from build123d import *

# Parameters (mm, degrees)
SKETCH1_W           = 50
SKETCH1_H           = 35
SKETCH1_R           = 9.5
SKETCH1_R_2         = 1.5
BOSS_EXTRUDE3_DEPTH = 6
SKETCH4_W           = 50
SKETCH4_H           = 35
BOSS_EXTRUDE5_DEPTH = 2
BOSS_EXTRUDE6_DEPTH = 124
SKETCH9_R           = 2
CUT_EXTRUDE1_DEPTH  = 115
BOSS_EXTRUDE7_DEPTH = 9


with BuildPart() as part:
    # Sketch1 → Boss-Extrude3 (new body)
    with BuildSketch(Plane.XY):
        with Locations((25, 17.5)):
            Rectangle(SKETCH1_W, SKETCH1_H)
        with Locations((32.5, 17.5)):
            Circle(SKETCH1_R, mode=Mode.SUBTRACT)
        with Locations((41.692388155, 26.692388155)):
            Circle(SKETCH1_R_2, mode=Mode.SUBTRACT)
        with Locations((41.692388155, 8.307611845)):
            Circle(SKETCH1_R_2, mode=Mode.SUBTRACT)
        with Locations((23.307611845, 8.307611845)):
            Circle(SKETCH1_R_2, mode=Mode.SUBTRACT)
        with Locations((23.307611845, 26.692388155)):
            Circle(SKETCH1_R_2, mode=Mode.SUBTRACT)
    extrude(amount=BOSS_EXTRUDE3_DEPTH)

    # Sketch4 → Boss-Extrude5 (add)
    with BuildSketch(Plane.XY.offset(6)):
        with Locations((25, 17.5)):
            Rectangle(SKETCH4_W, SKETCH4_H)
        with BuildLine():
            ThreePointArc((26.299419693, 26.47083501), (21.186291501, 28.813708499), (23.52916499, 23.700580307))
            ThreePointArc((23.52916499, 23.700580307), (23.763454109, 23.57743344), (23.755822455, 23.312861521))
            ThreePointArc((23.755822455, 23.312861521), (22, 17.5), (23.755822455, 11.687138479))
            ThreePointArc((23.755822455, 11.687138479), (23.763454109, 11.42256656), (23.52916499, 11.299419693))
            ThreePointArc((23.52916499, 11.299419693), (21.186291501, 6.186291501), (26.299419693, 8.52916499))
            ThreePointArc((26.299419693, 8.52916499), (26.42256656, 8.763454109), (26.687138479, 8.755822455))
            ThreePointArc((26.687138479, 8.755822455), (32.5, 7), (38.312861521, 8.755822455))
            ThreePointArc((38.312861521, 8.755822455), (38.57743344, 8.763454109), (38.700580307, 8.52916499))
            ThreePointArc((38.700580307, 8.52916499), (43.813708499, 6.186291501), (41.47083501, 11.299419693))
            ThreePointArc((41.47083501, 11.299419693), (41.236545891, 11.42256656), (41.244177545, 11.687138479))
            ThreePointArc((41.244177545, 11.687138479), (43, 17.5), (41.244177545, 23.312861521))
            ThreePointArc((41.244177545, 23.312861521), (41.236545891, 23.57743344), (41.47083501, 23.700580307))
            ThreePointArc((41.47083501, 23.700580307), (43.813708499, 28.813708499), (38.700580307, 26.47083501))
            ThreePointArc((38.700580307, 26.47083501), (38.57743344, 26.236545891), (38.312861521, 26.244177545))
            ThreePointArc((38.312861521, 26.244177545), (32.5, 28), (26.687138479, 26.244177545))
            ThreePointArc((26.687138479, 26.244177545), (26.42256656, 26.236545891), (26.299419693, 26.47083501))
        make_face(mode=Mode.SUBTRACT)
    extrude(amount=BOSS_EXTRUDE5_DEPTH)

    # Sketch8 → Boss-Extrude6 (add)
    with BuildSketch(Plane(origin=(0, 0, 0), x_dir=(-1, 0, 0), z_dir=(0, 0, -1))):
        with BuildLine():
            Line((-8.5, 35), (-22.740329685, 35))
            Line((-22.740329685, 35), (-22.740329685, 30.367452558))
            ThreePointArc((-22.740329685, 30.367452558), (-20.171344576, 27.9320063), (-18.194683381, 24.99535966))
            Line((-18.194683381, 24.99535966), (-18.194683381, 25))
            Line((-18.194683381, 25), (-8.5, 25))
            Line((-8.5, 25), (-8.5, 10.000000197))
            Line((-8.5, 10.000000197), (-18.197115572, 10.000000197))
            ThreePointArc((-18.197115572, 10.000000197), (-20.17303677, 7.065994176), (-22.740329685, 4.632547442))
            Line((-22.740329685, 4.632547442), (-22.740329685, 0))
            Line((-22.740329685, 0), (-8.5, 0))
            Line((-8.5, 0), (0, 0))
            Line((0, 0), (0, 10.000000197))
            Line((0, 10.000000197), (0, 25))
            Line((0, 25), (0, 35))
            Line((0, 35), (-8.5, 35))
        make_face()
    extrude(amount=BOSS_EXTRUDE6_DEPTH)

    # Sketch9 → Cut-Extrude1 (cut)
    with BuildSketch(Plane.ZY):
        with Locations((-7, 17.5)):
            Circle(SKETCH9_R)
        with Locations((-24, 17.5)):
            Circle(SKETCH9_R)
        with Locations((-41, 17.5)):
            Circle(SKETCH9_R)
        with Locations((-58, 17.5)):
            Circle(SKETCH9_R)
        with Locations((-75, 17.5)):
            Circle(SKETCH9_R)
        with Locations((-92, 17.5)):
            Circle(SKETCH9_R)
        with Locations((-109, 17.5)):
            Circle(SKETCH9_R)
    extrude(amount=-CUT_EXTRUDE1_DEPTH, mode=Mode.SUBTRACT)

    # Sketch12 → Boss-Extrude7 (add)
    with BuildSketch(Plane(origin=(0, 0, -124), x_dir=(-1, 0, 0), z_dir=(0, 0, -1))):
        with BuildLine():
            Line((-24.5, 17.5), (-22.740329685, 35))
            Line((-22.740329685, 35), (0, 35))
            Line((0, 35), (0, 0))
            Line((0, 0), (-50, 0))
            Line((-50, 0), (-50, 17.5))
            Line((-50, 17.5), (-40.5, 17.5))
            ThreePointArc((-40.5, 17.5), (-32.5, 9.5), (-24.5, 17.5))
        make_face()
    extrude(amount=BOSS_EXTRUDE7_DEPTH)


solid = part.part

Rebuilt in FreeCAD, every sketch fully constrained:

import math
import FreeCAD as App
import Part
import Sketcher

V = App.Vector

doc = App.newDocument("Part")
body = doc.addObject("PartDesign::Body", "Body")

# Sketch on XY plane
sketch1 = body.newObject("Sketcher::SketchObject", "Sketch")
sketch1.AttachmentSupport = (doc.getObject("XY_Plane"), [""])
sketch1.MapMode = "FlatFace"
sketch1.addGeometry([
    Part.LineSegment(V(0, 35, 0), V(0, 0, 0)),  # 0
    Part.LineSegment(V(0, 0, 0), V(50, 0, 0)),  # 1
    Part.LineSegment(V(50, 0, 0), V(50, 35, 0)),  # 2
    Part.LineSegment(V(50, 35, 0), V(0, 35, 0)),  # 3
    Part.Circle(V(23.307612, 8.307612, 0), V(0, 0, 1), 1.5),  # 4
    Part.Circle(V(41.692388, 8.307612, 0), V(0, 0, 1), 1.5),  # 5
    Part.Circle(V(32.5, 17.5, 0), V(0, 0, 1), 9.5),  # 6
    Part.Circle(V(23.307612, 26.692388, 0), V(0, 0, 1), 1.5),  # 7
    Part.Circle(V(41.692388, 26.692388, 0), V(0, 0, 1), 1.5),  # 8
], False)
sketch1.addConstraint([
    Sketcher.Constraint("Coincident", 0, 2, 1, 1),
    Sketcher.Constraint("Coincident", 1, 2, 2, 1),
    Sketcher.Constraint("Coincident", 2, 2, 3, 1),
    Sketcher.Constraint("Coincident", 3, 2, 0, 1),
    Sketcher.Constraint("Vertical", 0),
    Sketcher.Constraint("Horizontal", 1),
    Sketcher.Constraint("Vertical", 2),
    Sketcher.Constraint("Horizontal", 3),
    Sketcher.Constraint("Coincident", 0, 2, -1, 1),
    Sketcher.Constraint("Equal", 4, 5),
    Sketcher.Constraint("Equal", 5, 7),
    Sketcher.Constraint("Equal", 7, 8),
    Sketcher.Constraint("Horizontal", 4, 3, 5, 3),
    Sketcher.Constraint("Horizontal", 7, 3, 8, 3),
    Sketcher.Constraint("Vertical", 4, 3, 7, 3),
    Sketcher.Constraint("Vertical", 5, 3, 8, 3),
    Sketcher.Constraint("Diameter", 4, 3.0),
    Sketcher.Constraint("Diameter", 6, 19.0),
    Sketcher.Constraint("DistanceX", 1, 1, 1, 2, 50.0),
    Sketcher.Constraint("DistanceY", 0, 2, 0, 1, 35.0),
    Sketcher.Constraint("DistanceX", -1, 1, 6, 3, 32.5),
    Sketcher.Constraint("DistanceY", -1, 1, 6, 3, 17.5),
    Sketcher.Constraint("DistanceX", -1, 1, 4, 3, 23.307612),
    Sketcher.Constraint("DistanceY", -1, 1, 4, 3, 8.307612),
    Sketcher.Constraint("DistanceX", -1, 1, 5, 3, 41.692388),
    Sketcher.Constraint("DistanceY", -1, 1, 7, 3, 26.692388),
])
pad1 = body.newObject("PartDesign::Pad", "Pad")
pad1.Profile = sketch1
pad1.Length = 6

# Sketch on XY plane
sketch2 = body.newObject("Sketcher::SketchObject", "Sketch001")
sketch2.AttachmentSupport = (doc.getObject("XY_Plane"), [""])
sketch2.MapMode = "FlatFace"
sketch2.AttachmentOffset = App.Placement(V(0, 0, 6), App.Rotation())
sketch2.addGeometry([
    Part.LineSegment(V(0, 35, 0), V(0, 0, 0)),  # 0
    Part.LineSegment(V(0, 0, 0), V(50, 0, 0)),  # 1
    Part.LineSegment(V(50, 0, 0), V(50, 35, 0)),  # 2
    Part.LineSegment(V(50, 35, 0), V(0, 35, 0)),  # 3
    Part.ArcOfCircle(Part.Circle(V(23.307612, 26.692388, 0), V(0, 0, 1), 3), math.radians(-4.235209), math.radians(274.235209)),  # 4
    Part.ArcOfCircle(Part.Circle(V(26.548737, 26.452372, 0), V(0, 0, 1), 0.25), math.radians(175.764791), math.radians(303.614743)),  # 5
    Part.ArcOfCircle(Part.Circle(V(32.5, 17.5, 0), V(0, 0, 1), 10.5), math.radians(56.385257), math.radians(123.614743)),  # 6
    Part.ArcOfCircle(Part.Circle(V(38.451263, 26.452372, 0), V(0, 0, 1), 0.25), math.radians(-123.614743), math.radians(4.235209)),  # 7
    Part.ArcOfCircle(Part.Circle(V(41.692388, 26.692388, 0), V(0, 0, 1), 3), math.radians(-94.235209), math.radians(184.235209)),  # 8
    Part.ArcOfCircle(Part.Circle(V(41.452372, 23.451263, 0), V(0, 0, 1), 0.25), math.radians(85.764791), math.radians(213.614743)),  # 9
    Part.ArcOfCircle(Part.Circle(V(32.5, 17.5, 0), V(0, 0, 1), 10.5), math.radians(-33.614743), math.radians(33.614743)),  # 10
    Part.ArcOfCircle(Part.Circle(V(41.452372, 11.548737, 0), V(0, 0, 1), 0.25), math.radians(146.385257), math.radians(274.235209)),  # 11
    Part.ArcOfCircle(Part.Circle(V(41.692388, 8.307612, 0), V(0, 0, 1), 3), math.radians(175.764791), math.radians(454.235209)),  # 12
    Part.ArcOfCircle(Part.Circle(V(38.451263, 8.547628, 0), V(0, 0, 1), 0.25), math.radians(-4.235209), math.radians(123.614743)),  # 13
    Part.ArcOfCircle(Part.Circle(V(32.5, 17.5, 0), V(0, 0, 1), 10.5), math.radians(-123.614743), math.radians(-56.385257)),  # 14
    Part.ArcOfCircle(Part.Circle(V(26.548737, 8.547628, 0), V(0, 0, 1), 0.25), math.radians(56.385257), math.radians(184.235209)),  # 15
    Part.ArcOfCircle(Part.Circle(V(23.307612, 8.307612, 0), V(0, 0, 1), 3), math.radians(85.764791), math.radians(364.235209)),  # 16
    Part.ArcOfCircle(Part.Circle(V(23.547628, 11.548737, 0), V(0, 0, 1), 0.25), math.radians(-94.235209), math.radians(33.614743)),  # 17
    Part.ArcOfCircle(Part.Circle(V(32.5, 17.5, 0), V(0, 0, 1), 10.5), math.radians(146.385257), math.radians(213.614743)),  # 18
    Part.ArcOfCircle(Part.Circle(V(23.547628, 23.451263, 0), V(0, 0, 1), 0.25), math.radians(-33.614743), math.radians(94.235209)),  # 19
], False)
sketch2.addConstraint([
    Sketcher.Constraint("Coincident", 0, 2, 1, 1),
    Sketcher.Constraint("Coincident", 1, 2, 2, 1),
    Sketcher.Constraint("Coincident", 2, 2, 3, 1),
    Sketcher.Constraint("Coincident", 3, 2, 0, 1),
    Sketcher.Constraint("Coincident", 4, 1, 5, 1),
    Sketcher.Constraint("Coincident", 5, 2, 6, 2),
    Sketcher.Constraint("Coincident", 6, 1, 7, 1),
    Sketcher.Constraint("Coincident", 7, 2, 8, 2),
    Sketcher.Constraint("Coincident", 8, 1, 9, 1),
    Sketcher.Constraint("Coincident", 9, 2, 10, 2),
    Sketcher.Constraint("Coincident", 10, 1, 11, 1),
    Sketcher.Constraint("Coincident", 11, 2, 12, 2),
    Sketcher.Constraint("Coincident", 12, 1, 13, 1),
    Sketcher.Constraint("Coincident", 13, 2, 14, 2),
    Sketcher.Constraint("Coincident", 14, 1, 15, 1),
    Sketcher.Constraint("Coincident", 15, 2, 16, 2),
    Sketcher.Constraint("Coincident", 16, 1, 17, 1),
    Sketcher.Constraint("Coincident", 17, 2, 18, 2),
    Sketcher.Constraint("Coincident", 18, 1, 19, 1),
    Sketcher.Constraint("Coincident", 19, 2, 4, 2),
    Sketcher.Constraint("Vertical", 0),
    Sketcher.Constraint("Horizontal", 1),
    Sketcher.Constraint("Vertical", 2),
    Sketcher.Constraint("Horizontal", 3),
    Sketcher.Constraint("Coincident", 0, 2, -1, 1),
    Sketcher.Constraint("Coincident", 10, 3, 6, 3),
    Sketcher.Constraint("Coincident", 14, 3, 6, 3),
    Sketcher.Constraint("Coincident", 18, 3, 6, 3),
    Sketcher.Constraint("Radius", 4, 3.0),
    Sketcher.Constraint("Radius", 8, 3.0),
    Sketcher.Constraint("Radius", 12, 3.0),
    Sketcher.Constraint("Radius", 16, 3.0),
    Sketcher.Constraint("Radius", 6, 10.5),
    Sketcher.Constraint("Radius", 10, 10.5),
    Sketcher.Constraint("Radius", 14, 10.5),
    Sketcher.Constraint("Radius", 18, 10.5),
    Sketcher.Constraint("DistanceX", 1, 1, 1, 2, 50.0),
    Sketcher.Constraint("DistanceY", 0, 2, 0, 1, 35.0),
    Sketcher.Constraint("Radius", 5, 0.25),
    Sketcher.Constraint("Radius", 7, 0.25),
    Sketcher.Constraint("Radius", 9, 0.25),
    Sketcher.Constraint("Radius", 11, 0.25),
    Sketcher.Constraint("Radius", 13, 0.25),
    Sketcher.Constraint("Radius", 15, 0.25),
    Sketcher.Constraint("Radius", 17, 0.25),
    Sketcher.Constraint("Radius", 19, 0.25),
    Sketcher.Constraint("DistanceX", -1, 1, 6, 3, 32.5),
    Sketcher.Constraint("DistanceY", -1, 1, 6, 3, 17.5),
    Sketcher.Constraint("DistanceX", 5, 3, 5, 2, 0.138401),
    Sketcher.Constraint("DistanceX", 6, 1, 7, 3, 0.138401),
    Sketcher.Constraint("DistanceY", 9, 2, 9, 3, 0.138401),
    Sketcher.Constraint("DistanceY", 11, 3, 10, 1, 0.138401),
    Sketcher.Constraint("DistanceX", 13, 2, 13, 3, 0.138401),
    Sketcher.Constraint("DistanceX", 15, 3, 14, 1, 0.138401),
    Sketcher.Constraint("DistanceY", 17, 3, 17, 2, 0.138401),
    Sketcher.Constraint("DistanceY", 18, 1, 19, 3, 0.138401),
    Sketcher.Constraint("DistanceX", -1, 1, 4, 3, 23.307612),
    Sketcher.Constraint("DistanceY", -1, 1, 4, 3, 26.692388),
    Sketcher.Constraint("DistanceX", -1, 1, 8, 3, 41.692388),
    Sketcher.Constraint("DistanceY", -1, 1, 8, 3, 26.692388),
    Sketcher.Constraint("DistanceX", -1, 1, 12, 3, 41.692388),
    Sketcher.Constraint("DistanceY", -1, 1, 12, 3, 8.307612),
    Sketcher.Constraint("DistanceX", -1, 1, 16, 3, 23.307612),
    Sketcher.Constraint("DistanceY", -1, 1, 16, 3, 8.307612),
    Sketcher.Constraint("DistanceX", -1, 1, 4, 1, 26.29942),
    Sketcher.Constraint("DistanceX", -1, 1, 7, 2, 38.70058),
    Sketcher.Constraint("DistanceY", -1, 1, 8, 1, 23.70058),
    Sketcher.Constraint("DistanceY", -1, 1, 11, 2, 11.29942),
    Sketcher.Constraint("DistanceX", -1, 1, 12, 1, 38.70058),
    Sketcher.Constraint("DistanceX", -1, 1, 15, 2, 26.29942),
    Sketcher.Constraint("DistanceY", -1, 1, 16, 1, 11.29942),
    Sketcher.Constraint("DistanceY", -1, 1, 19, 2, 23.70058),
])
pad2 = body.newObject("PartDesign::Pad", "Pad001")
pad2.Profile = sketch2
pad2.Length = 2

# Sketch on XY plane
sketch3 = body.newObject("Sketcher::SketchObject", "Sketch002")
sketch3.AttachmentSupport = (doc.getObject("XY_Plane"), [""])
sketch3.MapMode = "FlatFace"
sketch3.addGeometry([
    Part.LineSegment(V(22.74033, 35, 0), V(22.74033, 30.367453, 0)),  # 0
    Part.ArcOfCircle(Part.Circle(V(32.5, 17.5, 0), V(0, 0, 1), 16.15), math.radians(127.17949), math.radians(152.347429)),  # 1
    Part.LineSegment(V(18.194683, 24.99536, 0), V(18.194683, 25, 0)),  # 2
    Part.LineSegment(V(18.194683, 25, 0), V(8.5, 25, 0)),  # 3
    Part.LineSegment(V(8.5, 25, 0), V(8.5, 10, 0)),  # 4
    Part.LineSegment(V(8.5, 10, 0), V(18.197116, 10, 0)),  # 5
    Part.ArcOfCircle(Part.Circle(V(32.5, 17.5, 0), V(0, 0, 1), 16.15), math.radians(-152.328843), math.radians(-127.17949)),  # 6
    Part.LineSegment(V(22.74033, 4.632547, 0), V(22.74033, 0, 0)),  # 7
    Part.LineSegment(V(22.74033, 0, 0), V(0, 0, 0)),  # 8
    Part.LineSegment(V(0, 0, 0), V(0, 35, 0)),  # 9
    Part.LineSegment(V(0, 35, 0), V(22.74033, 35, 0)),  # 10
], False)
sketch3.addConstraint([
    Sketcher.Constraint("Coincident", 0, 2, 1, 1),
    Sketcher.Constraint("Coincident", 1, 2, 2, 1),
    Sketcher.Constraint("Coincident", 2, 2, 3, 1),
    Sketcher.Constraint("Coincident", 3, 2, 4, 1),
    Sketcher.Constraint("Coincident", 4, 2, 5, 1),
    Sketcher.Constraint("Coincident", 5, 2, 6, 1),
    Sketcher.Constraint("Coincident", 6, 2, 7, 1),
    Sketcher.Constraint("Coincident", 7, 2, 8, 1),
    Sketcher.Constraint("Coincident", 8, 2, 9, 1),
    Sketcher.Constraint("Coincident", 9, 2, 10, 1),
    Sketcher.Constraint("Coincident", 10, 2, 0, 1),
    Sketcher.Constraint("Vertical", 0),
    Sketcher.Constraint("Vertical", 2),
    Sketcher.Constraint("Horizontal", 3),
    Sketcher.Constraint("Vertical", 4),
    Sketcher.Constraint("Horizontal", 5),
    Sketcher.Constraint("Vertical", 7),
    Sketcher.Constraint("Horizontal", 8),
    Sketcher.Constraint("Vertical", 9),
    Sketcher.Constraint("Horizontal", 10),
    Sketcher.Constraint("Coincident", 8, 2, -1, 1),
    Sketcher.Constraint("Coincident", 6, 3, 1, 3),
    Sketcher.Constraint("Equal", 1, 6),
    Sketcher.Constraint("Vertical", 0, 2, 6, 2),
    Sketcher.Constraint("Equal", 0, 7),
    Sketcher.Constraint("DistanceY", 4, 2, 4, 1, 15.0),
    Sketcher.Constraint("DistanceY", 9, 1, 9, 2, 35.0),
    Sketcher.Constraint("Radius", 1, 16.15),
    Sketcher.Constraint("DistanceY", -1, 1, 2, 2, 25.0),
    Sketcher.Constraint("DistanceX", 3, 2, 1, 3, 24.0),
    Sketcher.Constraint("DistanceX", -1, 1, 1, 3, 32.5),
    Sketcher.Constraint("DistanceX", 8, 2, 8, 1, 22.74033),
    Sketcher.Constraint("DistanceY", 2, 1, 2, 2, 0.00464),
])
pad3 = body.newObject("PartDesign::Pad", "Pad002")
pad3.Profile = sketch3
pad3.Length = 124
pad3.Reversed = True

# Sketch on YZ plane
sketch4 = body.newObject("Sketcher::SketchObject", "Sketch003")
sketch4.AttachmentSupport = (doc.getObject("YZ_Plane"), [""])
sketch4.MapMode = "FlatFace"
sketch4.addGeometry([
    Part.Circle(V(17.5, -7, 0), V(0, 0, 1), 2),  # 0
    Part.Circle(V(17.5, -24, 0), V(0, 0, 1), 2),  # 1
    Part.Circle(V(17.5, -41, 0), V(0, 0, 1), 2),  # 2
    Part.Circle(V(17.5, -58, 0), V(0, 0, 1), 2),  # 3
    Part.Circle(V(17.5, -75, 0), V(0, 0, 1), 2),  # 4
    Part.Circle(V(17.5, -92, 0), V(0, 0, 1), 2),  # 5
    Part.Circle(V(17.5, -109, 0), V(0, 0, 1), 2),  # 6
], False)
sketch4.addConstraint([
    Sketcher.Constraint("Equal", 0, 1),
    Sketcher.Constraint("Equal", 1, 2),
    Sketcher.Constraint("Equal", 2, 3),
    Sketcher.Constraint("Equal", 3, 4),
    Sketcher.Constraint("Equal", 4, 5),
    Sketcher.Constraint("Equal", 5, 6),
    Sketcher.Constraint("Vertical", 0, 3, 1, 3),
    Sketcher.Constraint("Vertical", 1, 3, 2, 3),
    Sketcher.Constraint("Vertical", 2, 3, 3, 3),
    Sketcher.Constraint("Vertical", 3, 3, 4, 3),
    Sketcher.Constraint("Vertical", 4, 3, 5, 3),
    Sketcher.Constraint("Vertical", 5, 3, 6, 3),
    Sketcher.Constraint("Diameter", 0, 4.0),
    Sketcher.Constraint("DistanceY", 0, 3, -1, 1, 7.0),
    Sketcher.Constraint("DistanceY", 1, 3, -1, 1, 24.0),
    Sketcher.Constraint("DistanceY", 2, 3, -1, 1, 41.0),
    Sketcher.Constraint("DistanceY", 3, 3, -1, 1, 58.0),
    Sketcher.Constraint("DistanceY", 4, 3, -1, 1, 75.0),
    Sketcher.Constraint("DistanceY", 5, 3, -1, 1, 92.0),
    Sketcher.Constraint("DistanceY", 6, 3, -1, 1, 109.0),
    Sketcher.Constraint("DistanceX", -1, 1, 0, 3, 17.5),
])
pocket1 = body.newObject("PartDesign::Pocket", "Pocket")
pocket1.Profile = sketch4
pocket1.Length = 115
pocket1.Reversed = True

# Sketch on XY plane
sketch5 = body.newObject("Sketcher::SketchObject", "Sketch004")
sketch5.AttachmentSupport = (doc.getObject("XY_Plane"), [""])
sketch5.MapMode = "FlatFace"
sketch5.AttachmentOffset = App.Placement(V(0, 0, -124), App.Rotation())
sketch5.addGeometry([
    Part.LineSegment(V(22.74033, 35, 0), V(24.5, 17.5, 0)),  # 0
    Part.ArcOfCircle(Part.Circle(V(32.5, 17.5, 0), V(0, 0, 1), 8), math.radians(180), math.radians(360)),  # 1
    Part.LineSegment(V(40.5, 17.5, 0), V(50, 17.5, 0)),  # 2
    Part.LineSegment(V(50, 17.5, 0), V(50, 0, 0)),  # 3
    Part.LineSegment(V(50, 0, 0), V(0, 0, 0)),  # 4
    Part.LineSegment(V(0, 0, 0), V(0, 35, 0)),  # 5
    Part.LineSegment(V(0, 35, 0), V(22.74033, 35, 0)),  # 6
], False)
sketch5.addConstraint([
    Sketcher.Constraint("Coincident", 0, 2, 1, 1),
    Sketcher.Constraint("Coincident", 1, 2, 2, 1),
    Sketcher.Constraint("Coincident", 2, 2, 3, 1),
    Sketcher.Constraint("Coincident", 3, 2, 4, 1),
    Sketcher.Constraint("Coincident", 4, 2, 5, 1),
    Sketcher.Constraint("Coincident", 5, 2, 6, 1),
    Sketcher.Constraint("Coincident", 6, 2, 0, 1),
    Sketcher.Constraint("Horizontal", 2),
    Sketcher.Constraint("Vertical", 3),
    Sketcher.Constraint("Horizontal", 4),
    Sketcher.Constraint("Vertical", 5),
    Sketcher.Constraint("Horizontal", 6),
    Sketcher.Constraint("Coincident", 4, 2, -1, 1),
    Sketcher.Constraint("Horizontal", 1, 3, 0, 2),
    Sketcher.Constraint("Horizontal", 0, 2, 1, 2),
    Sketcher.Constraint("Radius", 1, 8.0),
    Sketcher.Constraint("DistanceX", 4, 2, 4, 1, 50.0),
    Sketcher.Constraint("DistanceY", 5, 1, 5, 2, 35.0),
    Sketcher.Constraint("DistanceX", 2, 1, 2, 2, 9.5),
    Sketcher.Constraint("DistanceY", 3, 2, 3, 1, 17.5),
    Sketcher.Constraint("DistanceX", 6, 1, 6, 2, 22.74033),
])
pad4 = body.newObject("PartDesign::Pad", "Pad003")
pad4.Profile = sketch5
pad4.Length = 9
pad4.Reversed = True

doc.recompute()
